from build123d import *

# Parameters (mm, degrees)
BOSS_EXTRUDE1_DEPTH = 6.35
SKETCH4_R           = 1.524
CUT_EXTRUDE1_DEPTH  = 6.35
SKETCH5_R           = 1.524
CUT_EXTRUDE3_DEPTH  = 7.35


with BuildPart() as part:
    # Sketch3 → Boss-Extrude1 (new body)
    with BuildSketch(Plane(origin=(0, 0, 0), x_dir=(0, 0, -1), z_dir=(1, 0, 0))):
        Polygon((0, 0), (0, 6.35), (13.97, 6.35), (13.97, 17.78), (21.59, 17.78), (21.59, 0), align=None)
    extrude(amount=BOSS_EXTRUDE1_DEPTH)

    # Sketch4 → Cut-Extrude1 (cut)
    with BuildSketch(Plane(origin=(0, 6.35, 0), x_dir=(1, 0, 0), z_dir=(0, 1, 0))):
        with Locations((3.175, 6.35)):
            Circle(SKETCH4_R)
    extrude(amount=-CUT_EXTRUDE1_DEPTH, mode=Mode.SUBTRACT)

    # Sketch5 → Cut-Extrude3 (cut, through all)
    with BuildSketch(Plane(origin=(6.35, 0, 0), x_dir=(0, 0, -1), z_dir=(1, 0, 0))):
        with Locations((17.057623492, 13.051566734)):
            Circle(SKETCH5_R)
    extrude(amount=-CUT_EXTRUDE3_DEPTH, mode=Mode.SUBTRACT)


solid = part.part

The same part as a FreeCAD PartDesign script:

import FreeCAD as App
import Part
import Sketcher
from FreeCAD import Vector
Q = App.Units.Quantity


def add_polygon(sketch, points):
    """Adds a closed chain of lines whose ends are joined by coincident constraints."""
    first, n = sketch.GeometryCount, len(points)
    for a, b in zip(points, points[1:] + points[:1]):
        sketch.addGeometry(Part.LineSegment(App.Vector(*a, 0), App.Vector(*b, 0)), False)
    for i in range(n):
        sketch.addConstraint(Sketcher.Constraint("Coincident", first + i, 2, first + (i + 1) % n, 1))

doc = App.newDocument("Part")
params = doc.addObject("Spreadsheet::Sheet", "Params")
for row, (alias, value) in enumerate([
    ("sketch1_width", "0.7 in"),
    ("sketch1_height", "0.3 in"),
    ("sketch1_width2", "0.25 in"),
    ("sketch1_height2", "0.85 in"),
    ("pad1_length", "0.25 in"),
    ("sketch2_diameter", "0.12 in"),
    ("pocket1_length", "0.25 in"),
    ("sketch3_diameter", "0.12 in"),
], start=1):
    params.set(f"A{row}", alias)
    params.set(f"B{row}", "=" + value)
    params.setAlias(f"B{row}", alias)

body = doc.addObject("PartDesign::Body", "Body")

# Sketch on YZ plane
sketch1 = body.newObject("Sketcher::SketchObject", "Sketch")
sketch1.AttachmentSupport = (doc.getObject("YZ_Plane"), [""])
sketch1.MapMode = "FlatFace"
add_polygon(sketch1, [(6.35, 0), (0, 0), (0, -21.59), (17.78, -21.59), (17.78, -13.97), (6.35, -13.97)])  # lines 0-5
sketch1.addConstraint([
    Sketcher.Constraint("Horizontal", 0),
    Sketcher.Constraint("Vertical", 1),
    Sketcher.Constraint("Horizontal", 2),
    Sketcher.Constraint("Vertical", 3),
    Sketcher.Constraint("Horizontal", 4),
    Sketcher.Constraint("Vertical", 5),
    Sketcher.Constraint("Coincident", 0, 2, -1, 1),
    Sketcher.Constraint("DistanceX", 2, 1, 2, 2, Q("0.7 in")),
    Sketcher.Constraint("DistanceY", 3, 1, 3, 2, Q("0.3 in")),
    Sketcher.Constraint("DistanceX", 0, 2, 0, 1, Q("0.25 in")),
    Sketcher.Constraint("DistanceY", 1, 2, 1, 1, Q("0.85 in")),
])
sketch1.setExpression("Constraints[13]", "Params.sketch1_width")
sketch1.setExpression("Constraints[14]", "Params.sketch1_height")
sketch1.setExpression("Constraints[15]", "Params.sketch1_width2")
sketch1.setExpression("Constraints[16]", "Params.sketch1_height2")
pad1 = body.newObject("PartDesign::Pad", "Pad")
pad1.Profile = sketch1
pad1.setExpression("Length", "Params.pad1_length")

# Sketch on XZ plane
sketch2 = body.newObject("Sketcher::SketchObject", "Sketch001")
sketch2.AttachmentSupport = (doc.getObject("XZ_Plane"), [""])
sketch2.MapMode = "FlatFace"
sketch2.AttachmentOffset = App.Placement(Vector(0, 0, -0.25 * 25.4), App.Rotation())
sketch2.addGeometry(Part.Circle(Vector(3.175, -6.35, 0), Vector(0, 0, 1), 1.524), False)
sketch2.addConstraint([
    Sketcher.Constraint("Diameter", 0, Q("0.12 in")),
    Sketcher.Constraint("DistanceY", 0, 3, -1, 1, Q("0.25 in")),
    Sketcher.Constraint("DistanceX", -1, 1, 0, 3, Q("0.125 in")),
])
sketch2.setExpression("Constraints[0]", "Params.sketch2_diameter")
pocket1 = body.newObject("PartDesign::Pocket", "Pocket")
pocket1.Profile = sketch2
pocket1.setExpression("Length", "Params.pocket1_length")
pocket1.Reversed = True

# Sketch on YZ plane
sketch3 = body.newObject("Sketcher::SketchObject", "Sketch002")
sketch3.AttachmentSupport = (doc.getObject("YZ_Plane"), [""])
sketch3.MapMode = "FlatFace"
sketch3.AttachmentOffset = App.Placement(Vector(0, 0, 0.25 * 25.4), App.Rotation())
sketch3.addGeometry(Part.Circle(Vector(13.051567, -17.057623, 0), Vector(0, 0, 1), 1.524), False)
sketch3.addConstraint([
    Sketcher.Constraint("Diameter", 0, Q("0.12 in")),
    Sketcher.Constraint("DistanceX", -1, 1, 0, 3, 13.051567),
    Sketcher.Constraint("DistanceY", 0, 3, -1, 1, 17.057623),
])
sketch3.setExpression("Constraints[0]", "Params.sketch3_diameter")
pocket2 = body.newObject("PartDesign::Pocket", "Pocket001")
pocket2.Profile = sketch3
pocket2.Type = "ThroughAll"

doc.recompute()
